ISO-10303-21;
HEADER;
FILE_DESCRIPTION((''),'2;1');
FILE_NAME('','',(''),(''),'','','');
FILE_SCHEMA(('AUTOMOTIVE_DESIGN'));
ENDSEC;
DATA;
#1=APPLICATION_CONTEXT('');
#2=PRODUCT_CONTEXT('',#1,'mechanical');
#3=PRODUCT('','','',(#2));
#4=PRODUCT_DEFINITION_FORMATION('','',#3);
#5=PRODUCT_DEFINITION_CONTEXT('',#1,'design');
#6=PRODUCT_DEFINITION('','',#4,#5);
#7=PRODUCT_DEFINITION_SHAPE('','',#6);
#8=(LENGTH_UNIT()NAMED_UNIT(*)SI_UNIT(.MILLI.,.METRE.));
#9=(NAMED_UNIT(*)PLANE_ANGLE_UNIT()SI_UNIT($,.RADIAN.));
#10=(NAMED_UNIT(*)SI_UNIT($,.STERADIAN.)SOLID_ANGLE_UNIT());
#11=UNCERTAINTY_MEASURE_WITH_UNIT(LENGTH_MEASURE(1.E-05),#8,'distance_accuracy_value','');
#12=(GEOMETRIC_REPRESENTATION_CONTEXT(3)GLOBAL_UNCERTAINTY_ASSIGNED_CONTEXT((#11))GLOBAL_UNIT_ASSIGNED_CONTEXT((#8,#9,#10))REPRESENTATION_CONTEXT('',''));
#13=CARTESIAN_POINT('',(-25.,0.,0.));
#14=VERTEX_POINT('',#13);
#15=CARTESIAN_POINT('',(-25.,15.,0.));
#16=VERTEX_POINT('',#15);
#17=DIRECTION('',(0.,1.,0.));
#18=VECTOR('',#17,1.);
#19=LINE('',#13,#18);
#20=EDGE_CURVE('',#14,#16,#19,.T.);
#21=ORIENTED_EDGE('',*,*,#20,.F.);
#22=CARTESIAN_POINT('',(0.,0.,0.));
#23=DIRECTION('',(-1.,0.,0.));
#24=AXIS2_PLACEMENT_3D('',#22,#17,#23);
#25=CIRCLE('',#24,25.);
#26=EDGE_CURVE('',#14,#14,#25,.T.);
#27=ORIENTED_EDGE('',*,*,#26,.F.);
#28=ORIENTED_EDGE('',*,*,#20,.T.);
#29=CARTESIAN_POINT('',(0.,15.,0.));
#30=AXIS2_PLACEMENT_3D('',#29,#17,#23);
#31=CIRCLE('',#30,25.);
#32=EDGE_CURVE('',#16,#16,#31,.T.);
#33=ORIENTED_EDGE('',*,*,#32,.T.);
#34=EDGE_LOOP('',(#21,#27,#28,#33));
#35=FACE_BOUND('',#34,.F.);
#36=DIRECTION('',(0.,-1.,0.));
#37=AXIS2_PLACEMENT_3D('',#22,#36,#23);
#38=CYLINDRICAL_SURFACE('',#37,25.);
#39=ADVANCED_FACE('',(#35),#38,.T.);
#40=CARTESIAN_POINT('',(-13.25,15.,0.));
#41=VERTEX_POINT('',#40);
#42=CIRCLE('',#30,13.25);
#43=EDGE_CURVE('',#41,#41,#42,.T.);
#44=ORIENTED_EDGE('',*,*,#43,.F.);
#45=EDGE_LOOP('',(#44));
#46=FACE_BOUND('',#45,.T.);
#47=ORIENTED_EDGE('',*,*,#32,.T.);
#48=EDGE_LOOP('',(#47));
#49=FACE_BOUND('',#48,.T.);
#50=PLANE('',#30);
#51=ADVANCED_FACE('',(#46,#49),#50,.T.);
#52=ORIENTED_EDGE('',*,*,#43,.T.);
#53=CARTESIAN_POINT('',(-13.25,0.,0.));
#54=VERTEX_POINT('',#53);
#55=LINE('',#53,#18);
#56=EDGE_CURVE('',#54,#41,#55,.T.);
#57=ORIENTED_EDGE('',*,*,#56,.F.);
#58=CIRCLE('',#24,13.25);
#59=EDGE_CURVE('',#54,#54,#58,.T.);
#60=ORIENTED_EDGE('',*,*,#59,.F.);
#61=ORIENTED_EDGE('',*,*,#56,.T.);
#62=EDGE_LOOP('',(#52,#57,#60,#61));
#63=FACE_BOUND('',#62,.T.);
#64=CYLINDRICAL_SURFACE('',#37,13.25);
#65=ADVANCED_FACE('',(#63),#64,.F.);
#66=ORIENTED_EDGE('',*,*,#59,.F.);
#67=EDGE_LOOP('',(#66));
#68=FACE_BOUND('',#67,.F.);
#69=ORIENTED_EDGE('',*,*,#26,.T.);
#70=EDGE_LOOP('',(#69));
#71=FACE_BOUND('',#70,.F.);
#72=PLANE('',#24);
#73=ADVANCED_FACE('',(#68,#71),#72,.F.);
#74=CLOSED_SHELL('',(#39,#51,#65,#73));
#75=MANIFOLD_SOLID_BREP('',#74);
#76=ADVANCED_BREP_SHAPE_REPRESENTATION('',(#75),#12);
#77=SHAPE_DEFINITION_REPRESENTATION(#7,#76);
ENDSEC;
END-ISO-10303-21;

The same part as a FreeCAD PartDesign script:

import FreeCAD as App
import Part
import Sketcher
Q = App.Units.Quantity

doc = App.newDocument("Part")
body = doc.addObject("PartDesign::Body", "Body")

# Sketch on XZ plane
sketch1 = doc.addObject("Sketcher::SketchObject", "Sketch")
body.addObject(sketch1)
sketch1.AttachmentSupport = (doc.XZ_Plane, [""])
sketch1.MapMode = "FlatFace"
sketch1.addGeometry(Part.Circle(App.Vector(0, 0, 0), App.Vector(0, 0, 1), 25), False)
sketch1.addGeometry(Part.Circle(App.Vector(0, 0, 0), App.Vector(0, 0, 1), 13), False)
sketch1.addConstraint(Sketcher.Constraint("Coincident", 0, 3, -1, 1))
sketch1.addConstraint(Sketcher.Constraint("Coincident", 1, 3, -1, 1))
sketch1.addConstraint(Sketcher.Constraint("Diameter", 0, Q("50 mm")))
sketch1.addConstraint(Sketcher.Constraint("Diameter", 1, Q("26.5 mm")))
pad1 = doc.addObject("PartDesign::Pad", "Pad")
body.addObject(pad1)
pad1.Profile = sketch1
pad1.Length = 15
pad1.Reversed = True

doc.recompute()
